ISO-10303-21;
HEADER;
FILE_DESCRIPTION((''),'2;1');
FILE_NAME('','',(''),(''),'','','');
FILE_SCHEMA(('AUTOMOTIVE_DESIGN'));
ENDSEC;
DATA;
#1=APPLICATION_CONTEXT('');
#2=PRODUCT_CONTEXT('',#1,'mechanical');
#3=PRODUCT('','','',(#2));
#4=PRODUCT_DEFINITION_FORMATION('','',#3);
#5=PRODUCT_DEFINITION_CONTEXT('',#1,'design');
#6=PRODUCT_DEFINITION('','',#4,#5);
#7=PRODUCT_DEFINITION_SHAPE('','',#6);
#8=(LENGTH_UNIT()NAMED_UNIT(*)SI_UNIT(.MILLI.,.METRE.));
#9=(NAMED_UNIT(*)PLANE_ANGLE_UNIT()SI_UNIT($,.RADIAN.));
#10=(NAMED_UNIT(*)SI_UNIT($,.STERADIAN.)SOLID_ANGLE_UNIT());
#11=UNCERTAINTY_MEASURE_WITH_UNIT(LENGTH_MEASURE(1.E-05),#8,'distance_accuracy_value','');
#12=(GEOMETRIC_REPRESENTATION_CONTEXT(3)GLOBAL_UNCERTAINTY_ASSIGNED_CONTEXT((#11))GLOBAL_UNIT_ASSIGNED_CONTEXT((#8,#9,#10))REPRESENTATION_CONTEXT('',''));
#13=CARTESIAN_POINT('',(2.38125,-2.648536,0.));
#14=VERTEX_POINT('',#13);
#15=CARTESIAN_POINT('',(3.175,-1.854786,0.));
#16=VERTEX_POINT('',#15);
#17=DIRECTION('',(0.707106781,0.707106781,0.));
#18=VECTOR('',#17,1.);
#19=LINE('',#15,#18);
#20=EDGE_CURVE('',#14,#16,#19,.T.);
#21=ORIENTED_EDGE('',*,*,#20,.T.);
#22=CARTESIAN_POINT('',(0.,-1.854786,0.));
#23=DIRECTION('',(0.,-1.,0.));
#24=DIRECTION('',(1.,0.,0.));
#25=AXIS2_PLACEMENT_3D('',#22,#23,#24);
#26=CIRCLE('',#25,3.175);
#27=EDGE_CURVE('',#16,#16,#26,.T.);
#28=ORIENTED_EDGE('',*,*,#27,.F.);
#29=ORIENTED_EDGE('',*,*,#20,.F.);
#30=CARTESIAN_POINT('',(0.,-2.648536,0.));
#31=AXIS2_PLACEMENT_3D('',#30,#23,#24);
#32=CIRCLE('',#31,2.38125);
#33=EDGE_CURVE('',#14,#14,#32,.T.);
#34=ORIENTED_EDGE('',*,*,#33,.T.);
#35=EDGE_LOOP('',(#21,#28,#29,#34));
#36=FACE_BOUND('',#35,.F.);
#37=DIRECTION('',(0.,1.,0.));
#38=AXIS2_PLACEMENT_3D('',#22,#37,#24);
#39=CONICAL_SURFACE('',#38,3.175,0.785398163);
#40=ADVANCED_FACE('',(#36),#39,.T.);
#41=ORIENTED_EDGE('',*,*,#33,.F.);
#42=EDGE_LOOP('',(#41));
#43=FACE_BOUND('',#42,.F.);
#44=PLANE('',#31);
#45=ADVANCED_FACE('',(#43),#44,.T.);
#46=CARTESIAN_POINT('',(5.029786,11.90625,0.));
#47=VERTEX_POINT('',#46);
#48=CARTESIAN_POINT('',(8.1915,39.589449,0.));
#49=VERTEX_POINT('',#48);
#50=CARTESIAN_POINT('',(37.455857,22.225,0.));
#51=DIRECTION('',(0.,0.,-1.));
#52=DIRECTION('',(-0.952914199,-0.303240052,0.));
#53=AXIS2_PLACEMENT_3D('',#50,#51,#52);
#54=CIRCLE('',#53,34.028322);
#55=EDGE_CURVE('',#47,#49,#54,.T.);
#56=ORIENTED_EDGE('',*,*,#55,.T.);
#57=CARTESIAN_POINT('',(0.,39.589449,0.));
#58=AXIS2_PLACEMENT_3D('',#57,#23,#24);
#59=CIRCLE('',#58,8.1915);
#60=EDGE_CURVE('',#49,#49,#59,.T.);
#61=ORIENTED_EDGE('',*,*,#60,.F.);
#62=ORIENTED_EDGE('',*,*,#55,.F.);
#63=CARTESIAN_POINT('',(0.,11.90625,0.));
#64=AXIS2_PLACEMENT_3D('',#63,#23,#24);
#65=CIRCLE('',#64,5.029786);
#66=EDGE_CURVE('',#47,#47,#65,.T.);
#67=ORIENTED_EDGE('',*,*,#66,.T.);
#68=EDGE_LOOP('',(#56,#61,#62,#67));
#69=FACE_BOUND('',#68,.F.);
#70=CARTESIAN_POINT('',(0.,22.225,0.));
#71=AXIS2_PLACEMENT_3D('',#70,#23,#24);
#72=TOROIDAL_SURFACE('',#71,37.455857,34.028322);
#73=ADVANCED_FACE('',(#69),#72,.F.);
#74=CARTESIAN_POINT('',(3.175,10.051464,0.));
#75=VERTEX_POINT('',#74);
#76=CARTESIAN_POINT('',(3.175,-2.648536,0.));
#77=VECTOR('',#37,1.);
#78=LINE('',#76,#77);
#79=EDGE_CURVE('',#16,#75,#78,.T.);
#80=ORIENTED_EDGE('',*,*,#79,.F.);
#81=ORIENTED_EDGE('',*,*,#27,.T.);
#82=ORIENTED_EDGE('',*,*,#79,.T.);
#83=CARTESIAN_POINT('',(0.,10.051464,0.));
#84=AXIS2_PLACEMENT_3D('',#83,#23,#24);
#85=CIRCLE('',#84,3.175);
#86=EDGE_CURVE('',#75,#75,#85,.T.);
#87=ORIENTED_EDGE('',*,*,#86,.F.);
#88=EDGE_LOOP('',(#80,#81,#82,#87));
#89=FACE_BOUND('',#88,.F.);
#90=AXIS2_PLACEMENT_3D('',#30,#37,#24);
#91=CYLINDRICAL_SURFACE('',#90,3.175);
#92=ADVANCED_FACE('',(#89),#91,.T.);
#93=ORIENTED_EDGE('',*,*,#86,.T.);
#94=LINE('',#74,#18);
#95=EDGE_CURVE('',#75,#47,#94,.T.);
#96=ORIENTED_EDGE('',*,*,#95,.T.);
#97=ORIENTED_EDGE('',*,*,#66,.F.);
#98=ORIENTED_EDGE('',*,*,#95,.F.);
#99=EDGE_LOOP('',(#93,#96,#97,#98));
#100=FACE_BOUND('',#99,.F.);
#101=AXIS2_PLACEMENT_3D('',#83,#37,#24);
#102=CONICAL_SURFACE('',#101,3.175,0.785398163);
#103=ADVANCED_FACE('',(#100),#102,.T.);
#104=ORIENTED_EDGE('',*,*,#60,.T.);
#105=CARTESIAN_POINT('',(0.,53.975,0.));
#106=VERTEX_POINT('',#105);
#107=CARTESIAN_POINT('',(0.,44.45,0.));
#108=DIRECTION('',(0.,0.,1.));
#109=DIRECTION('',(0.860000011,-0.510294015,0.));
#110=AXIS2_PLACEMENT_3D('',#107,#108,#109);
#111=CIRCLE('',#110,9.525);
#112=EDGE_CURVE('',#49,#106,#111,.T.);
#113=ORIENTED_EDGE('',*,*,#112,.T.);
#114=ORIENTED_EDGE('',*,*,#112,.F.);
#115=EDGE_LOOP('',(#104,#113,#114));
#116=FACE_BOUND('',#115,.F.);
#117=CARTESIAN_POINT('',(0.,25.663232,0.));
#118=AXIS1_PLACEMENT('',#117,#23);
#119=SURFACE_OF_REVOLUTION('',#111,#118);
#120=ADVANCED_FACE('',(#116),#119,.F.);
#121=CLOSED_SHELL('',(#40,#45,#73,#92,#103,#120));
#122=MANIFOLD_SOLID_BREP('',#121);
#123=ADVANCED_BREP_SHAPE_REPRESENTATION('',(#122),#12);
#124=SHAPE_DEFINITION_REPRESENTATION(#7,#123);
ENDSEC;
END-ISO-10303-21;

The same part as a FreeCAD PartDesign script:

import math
import FreeCAD as App
import Part
import Sketcher
Q = App.Units.Quantity


def edges_at(feature, points):
    """Names of the edges that pass closest to the given points."""
    edges = feature.Shape.Edges
    near = lambda p: min(range(len(edges)), key=lambda i: edges[i].distToShape(Part.Vertex(*p))[0])
    return sorted({f"Edge{near(p) + 1}" for p in points})

doc = App.newDocument("Part")
body = doc.addObject("PartDesign::Body", "Body")

# Sketch on XY plane
sketch1 = body.newObject("Sketcher::SketchObject", "Sketch")
sketch1.AttachmentSupport = (doc.getObject("XY_Plane"), [""])
sketch1.MapMode = "FlatFace"
sketch1.addGeometry([
    Part.ArcOfCircle(Part.Circle(App.Vector(37.5, 22.2, 0), App.Vector(0, 0, 1), 34), math.radians(149), math.radians(198)),  # 0
    Part.ArcOfCircle(Part.Circle(App.Vector(0, 44.4, 0), App.Vector(0, 0, 1), 9.5), math.radians(-31), math.radians(90)),  # 1
    Part.LineSegment(App.Vector(0, 54, 0), App.Vector(0, -2.6, 0)),  # 2
    Part.LineSegment(App.Vector(0, -2.6, 0), App.Vector(3.2, -2.6, 0)),  # 3
    Part.LineSegment(App.Vector(3.2, -2.6, 0), App.Vector(3.2, 10.1, 0)),  # 4
    Part.LineSegment(App.Vector(3.2, 10.1, 0), App.Vector(5, 11.9, 0)),  # 5
], False)
sketch1.addConstraint([
    Sketcher.Constraint("Tangent", 0, 1, 1, 1),
    Sketcher.Constraint("Coincident", 1, 2, 2, 1),
    Sketcher.Constraint("Coincident", 2, 2, 3, 1),
    Sketcher.Constraint("Coincident", 3, 2, 4, 1),
    Sketcher.Constraint("Coincident", 4, 2, 5, 1),
    Sketcher.Constraint("Coincident", 5, 2, 0, 2),
    Sketcher.Constraint("Vertical", 2),
    Sketcher.Constraint("Horizontal", 3),
    Sketcher.Constraint("Vertical", 4),
    Sketcher.Constraint("PointOnObject", 1, 3, -2),
    Sketcher.Constraint("PointOnObject", 1, 2, -2),
    Sketcher.Constraint("DistanceY", 4, 1, 4, 2, Q("0.5 in")),
    Sketcher.Constraint("Angle", 5, Q("45 deg")),
    Sketcher.Constraint("Radius", 1, Q("0.375 in")),
    Sketcher.Constraint("DistanceX", 3, 1, 3, 2, Q("0.125 in")),
    Sketcher.Constraint("DistanceY", -1, 1, 1, 3, Q("1.75 in")),
    Sketcher.Constraint("DistanceY", 0, 3, 1, 2, Q("1.25 in")),
    Sketcher.Constraint("DistanceY", -1, 1, 5, 2, Q("0.46875 in")),
    Sketcher.Constraint("Radius", 0, Q("34.028322 mm")),
])
revolution = body.newObject("PartDesign::Revolution", "Revolution")
revolution.Profile = sketch1
revolution.ReferenceAxis = (sketch1, ["V_Axis"])
revolution.Angle = 360
doc.recompute()

chamfer = body.newObject("PartDesign::Chamfer", "Chamfer")
chamfer.Base = (revolution, edges_at(revolution, [(-3.175, -2.649, 0)]))
chamfer.Size = Q("0.03125 in")

doc.recompute()
